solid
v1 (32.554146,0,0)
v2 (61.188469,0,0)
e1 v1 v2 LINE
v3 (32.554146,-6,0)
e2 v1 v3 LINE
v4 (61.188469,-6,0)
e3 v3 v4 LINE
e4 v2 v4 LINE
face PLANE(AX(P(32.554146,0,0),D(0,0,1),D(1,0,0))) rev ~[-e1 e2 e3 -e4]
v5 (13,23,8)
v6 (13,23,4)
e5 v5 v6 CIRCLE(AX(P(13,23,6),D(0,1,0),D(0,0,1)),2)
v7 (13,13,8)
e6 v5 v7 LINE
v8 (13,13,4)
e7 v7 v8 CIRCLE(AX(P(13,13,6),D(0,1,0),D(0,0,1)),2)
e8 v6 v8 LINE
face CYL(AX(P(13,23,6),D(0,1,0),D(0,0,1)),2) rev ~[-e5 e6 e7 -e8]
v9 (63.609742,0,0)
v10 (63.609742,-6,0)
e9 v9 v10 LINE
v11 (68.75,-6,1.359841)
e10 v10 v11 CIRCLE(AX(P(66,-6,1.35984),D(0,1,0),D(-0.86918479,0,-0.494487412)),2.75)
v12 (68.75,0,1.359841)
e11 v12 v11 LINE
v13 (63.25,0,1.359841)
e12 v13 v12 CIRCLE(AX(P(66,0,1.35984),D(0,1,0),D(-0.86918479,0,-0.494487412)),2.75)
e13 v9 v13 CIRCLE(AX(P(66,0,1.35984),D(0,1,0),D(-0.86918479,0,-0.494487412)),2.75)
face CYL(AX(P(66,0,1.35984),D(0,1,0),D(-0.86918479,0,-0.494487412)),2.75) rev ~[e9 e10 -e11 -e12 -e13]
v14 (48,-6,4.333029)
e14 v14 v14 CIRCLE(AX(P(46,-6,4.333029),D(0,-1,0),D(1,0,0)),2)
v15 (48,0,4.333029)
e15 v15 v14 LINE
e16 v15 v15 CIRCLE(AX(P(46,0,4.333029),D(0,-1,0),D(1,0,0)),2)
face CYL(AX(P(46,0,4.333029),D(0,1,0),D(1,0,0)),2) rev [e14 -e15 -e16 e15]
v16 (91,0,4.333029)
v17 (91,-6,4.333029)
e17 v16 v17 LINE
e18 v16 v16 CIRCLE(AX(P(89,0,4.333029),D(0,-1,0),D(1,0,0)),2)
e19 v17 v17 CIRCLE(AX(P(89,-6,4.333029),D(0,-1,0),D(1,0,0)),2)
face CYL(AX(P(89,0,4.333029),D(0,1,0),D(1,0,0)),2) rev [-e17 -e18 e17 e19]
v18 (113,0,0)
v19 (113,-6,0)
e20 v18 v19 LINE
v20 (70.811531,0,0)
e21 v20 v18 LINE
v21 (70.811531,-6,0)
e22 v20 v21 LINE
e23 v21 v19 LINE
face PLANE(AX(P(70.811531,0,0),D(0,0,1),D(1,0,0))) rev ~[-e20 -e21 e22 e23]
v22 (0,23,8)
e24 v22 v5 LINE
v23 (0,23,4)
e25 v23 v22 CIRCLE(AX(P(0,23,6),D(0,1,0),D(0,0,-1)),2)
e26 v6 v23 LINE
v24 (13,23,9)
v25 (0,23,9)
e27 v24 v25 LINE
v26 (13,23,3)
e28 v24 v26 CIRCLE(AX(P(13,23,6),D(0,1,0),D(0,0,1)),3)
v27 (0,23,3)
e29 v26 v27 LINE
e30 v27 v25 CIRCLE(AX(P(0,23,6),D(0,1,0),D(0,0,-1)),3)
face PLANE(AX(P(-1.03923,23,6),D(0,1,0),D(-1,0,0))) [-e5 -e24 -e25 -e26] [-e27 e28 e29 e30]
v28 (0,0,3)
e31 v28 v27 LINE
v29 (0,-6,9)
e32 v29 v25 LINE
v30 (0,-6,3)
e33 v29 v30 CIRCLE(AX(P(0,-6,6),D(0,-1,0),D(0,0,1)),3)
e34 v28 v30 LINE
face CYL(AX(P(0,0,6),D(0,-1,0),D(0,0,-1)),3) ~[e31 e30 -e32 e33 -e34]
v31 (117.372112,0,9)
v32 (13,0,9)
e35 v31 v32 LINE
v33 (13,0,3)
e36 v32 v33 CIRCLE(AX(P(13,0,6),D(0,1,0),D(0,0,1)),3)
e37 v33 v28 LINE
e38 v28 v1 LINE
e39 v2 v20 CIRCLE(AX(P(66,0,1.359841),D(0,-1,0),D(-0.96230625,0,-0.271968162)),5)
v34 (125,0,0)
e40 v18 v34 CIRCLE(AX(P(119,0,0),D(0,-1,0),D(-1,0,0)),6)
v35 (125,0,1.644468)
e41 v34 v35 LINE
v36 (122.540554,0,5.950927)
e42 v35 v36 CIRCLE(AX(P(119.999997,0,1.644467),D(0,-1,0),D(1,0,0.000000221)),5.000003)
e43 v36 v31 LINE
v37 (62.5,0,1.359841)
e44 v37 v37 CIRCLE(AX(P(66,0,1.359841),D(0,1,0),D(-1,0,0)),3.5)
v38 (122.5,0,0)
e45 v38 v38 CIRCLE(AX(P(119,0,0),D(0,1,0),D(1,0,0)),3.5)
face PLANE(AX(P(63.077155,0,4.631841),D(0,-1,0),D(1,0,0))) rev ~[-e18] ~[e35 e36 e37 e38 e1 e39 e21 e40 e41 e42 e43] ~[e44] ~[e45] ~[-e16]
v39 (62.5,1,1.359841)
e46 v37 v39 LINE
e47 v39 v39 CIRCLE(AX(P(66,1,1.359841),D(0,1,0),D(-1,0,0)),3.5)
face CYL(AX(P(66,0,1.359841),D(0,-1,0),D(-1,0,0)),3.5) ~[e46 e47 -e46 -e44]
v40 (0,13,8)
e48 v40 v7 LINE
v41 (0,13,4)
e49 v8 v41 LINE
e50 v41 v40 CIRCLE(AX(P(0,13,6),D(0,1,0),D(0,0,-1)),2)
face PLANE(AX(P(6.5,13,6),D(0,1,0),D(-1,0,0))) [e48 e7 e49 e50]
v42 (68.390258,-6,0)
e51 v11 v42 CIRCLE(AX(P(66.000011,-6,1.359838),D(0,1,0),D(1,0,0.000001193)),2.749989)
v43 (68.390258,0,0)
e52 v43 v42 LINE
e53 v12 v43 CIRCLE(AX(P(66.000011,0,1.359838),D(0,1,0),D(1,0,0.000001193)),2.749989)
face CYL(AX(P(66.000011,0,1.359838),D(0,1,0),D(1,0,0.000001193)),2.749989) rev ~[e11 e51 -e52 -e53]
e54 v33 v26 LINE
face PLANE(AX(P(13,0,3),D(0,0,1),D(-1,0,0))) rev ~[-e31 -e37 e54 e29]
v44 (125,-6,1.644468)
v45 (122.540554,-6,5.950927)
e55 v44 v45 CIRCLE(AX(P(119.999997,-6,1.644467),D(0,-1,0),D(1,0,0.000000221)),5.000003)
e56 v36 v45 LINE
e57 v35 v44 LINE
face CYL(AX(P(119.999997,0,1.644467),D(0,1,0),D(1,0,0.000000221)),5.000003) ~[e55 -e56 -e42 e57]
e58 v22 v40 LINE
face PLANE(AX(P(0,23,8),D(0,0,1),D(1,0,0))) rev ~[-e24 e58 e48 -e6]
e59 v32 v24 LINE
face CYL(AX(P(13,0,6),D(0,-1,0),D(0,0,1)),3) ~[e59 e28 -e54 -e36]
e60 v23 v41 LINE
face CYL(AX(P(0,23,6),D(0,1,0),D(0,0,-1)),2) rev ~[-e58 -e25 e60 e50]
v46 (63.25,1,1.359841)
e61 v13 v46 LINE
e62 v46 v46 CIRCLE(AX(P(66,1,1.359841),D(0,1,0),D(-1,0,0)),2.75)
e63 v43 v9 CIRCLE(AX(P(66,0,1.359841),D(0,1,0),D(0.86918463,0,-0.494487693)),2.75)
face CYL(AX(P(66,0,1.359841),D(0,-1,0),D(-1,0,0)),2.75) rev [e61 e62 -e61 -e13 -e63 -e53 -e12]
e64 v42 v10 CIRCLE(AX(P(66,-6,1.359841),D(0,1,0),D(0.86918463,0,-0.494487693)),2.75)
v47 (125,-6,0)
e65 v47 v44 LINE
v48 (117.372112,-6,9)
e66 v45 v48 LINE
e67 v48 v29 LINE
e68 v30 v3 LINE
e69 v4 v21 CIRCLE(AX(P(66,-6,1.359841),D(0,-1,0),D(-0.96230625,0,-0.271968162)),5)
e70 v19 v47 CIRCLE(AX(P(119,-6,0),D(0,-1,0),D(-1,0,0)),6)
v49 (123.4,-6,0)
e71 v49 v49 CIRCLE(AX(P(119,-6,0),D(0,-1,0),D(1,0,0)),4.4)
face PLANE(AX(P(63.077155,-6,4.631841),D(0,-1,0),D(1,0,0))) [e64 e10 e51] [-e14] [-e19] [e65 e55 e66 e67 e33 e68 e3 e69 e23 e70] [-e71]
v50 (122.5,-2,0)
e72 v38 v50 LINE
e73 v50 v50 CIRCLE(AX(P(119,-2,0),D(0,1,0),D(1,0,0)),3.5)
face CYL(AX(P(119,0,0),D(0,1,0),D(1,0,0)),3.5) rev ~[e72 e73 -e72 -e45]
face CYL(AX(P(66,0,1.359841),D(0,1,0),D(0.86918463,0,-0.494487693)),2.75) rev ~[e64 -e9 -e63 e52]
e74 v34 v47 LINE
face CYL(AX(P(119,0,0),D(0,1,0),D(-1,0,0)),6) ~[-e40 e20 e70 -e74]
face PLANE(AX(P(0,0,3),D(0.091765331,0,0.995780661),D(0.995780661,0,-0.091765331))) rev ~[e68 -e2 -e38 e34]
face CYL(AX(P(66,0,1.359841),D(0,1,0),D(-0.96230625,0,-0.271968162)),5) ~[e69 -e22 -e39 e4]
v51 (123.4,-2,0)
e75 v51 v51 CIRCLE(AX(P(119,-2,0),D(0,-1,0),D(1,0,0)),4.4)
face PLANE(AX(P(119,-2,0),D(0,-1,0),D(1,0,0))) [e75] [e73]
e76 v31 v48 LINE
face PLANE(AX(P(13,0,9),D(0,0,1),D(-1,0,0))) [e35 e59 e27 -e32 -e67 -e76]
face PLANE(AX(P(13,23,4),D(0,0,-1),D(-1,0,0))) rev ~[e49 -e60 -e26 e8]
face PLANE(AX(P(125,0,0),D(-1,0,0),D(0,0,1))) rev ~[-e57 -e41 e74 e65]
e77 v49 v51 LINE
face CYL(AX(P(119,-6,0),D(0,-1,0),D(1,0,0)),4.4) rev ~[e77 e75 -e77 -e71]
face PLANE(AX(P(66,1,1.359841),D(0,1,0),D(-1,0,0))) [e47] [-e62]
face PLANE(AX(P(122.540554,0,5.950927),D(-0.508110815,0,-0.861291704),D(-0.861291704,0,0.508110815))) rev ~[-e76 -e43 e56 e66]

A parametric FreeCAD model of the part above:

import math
import FreeCAD as App
import Part
import Sketcher

doc = App.newDocument("Part")
body = doc.addObject("PartDesign::Body", "Body")

# Sketch on XZ plane
sketch1 = doc.addObject("Sketcher::SketchObject", "Sketch")
body.addObject(sketch1)
sketch1.AttachmentSupport = (doc.XZ_Plane, [""])
sketch1.MapMode = "FlatFace"
sketch1.addGeometry(Part.LineSegment(App.Vector(0, 3, 0), App.Vector(32.6, 0, 0)), False)
sketch1.addGeometry(Part.LineSegment(App.Vector(32.6, 0, 0), App.Vector(61.2, 0, 0)), False)
sketch1.addGeometry(Part.ArcOfCircle(Part.Circle(App.Vector(66, 1.4, 0), App.Vector(0, 0, 1), 5), math.radians(-164), math.radians(-16)), False)
sketch1.addGeometry(Part.LineSegment(App.Vector(70.8, 0, 0), App.Vector(113, 0, 0)), False)
sketch1.addGeometry(Part.ArcOfCircle(Part.Circle(App.Vector(119, 0, 0), App.Vector(0, 0, 1), 6), math.radians(180), math.radians(360)), False)
sketch1.addGeometry(Part.LineSegment(App.Vector(125, 0, 0), App.Vector(125, 1.6, 0)), False)
sketch1.addGeometry(Part.ArcOfCircle(Part.Circle(App.Vector(120, 1.6, 0), App.Vector(0, 0, 1), 5), math.radians(0), math.radians(59)), False)
sketch1.addGeometry(Part.LineSegment(App.Vector(122.5, 6, 0), App.Vector(117.4, 9, 0)), False)
sketch1.addGeometry(Part.LineSegment(App.Vector(117.4, 9, 0), App.Vector(0, 9, 0)), False)
sketch1.addGeometry(Part.ArcOfCircle(Part.Circle(App.Vector(0, 6, 0), App.Vector(0, 0, 1), 3), math.radians(90), math.radians(270)), False)
sketch1.addGeometry(Part.Circle(App.Vector(119, 0, 0), App.Vector(0, 0, 1), 3.5), False)
sketch1.addGeometry(Part.ArcOfCircle(Part.Circle(App.Vector(66, 1.4, 0), App.Vector(0, 0, 1), 2.7), math.radians(0), math.radians(210)), False)
sketch1.addGeometry(Part.ArcOfCircle(Part.Circle(App.Vector(66, 1.4, 0), App.Vector(0, 0, 1), 2.7), math.radians(-30), math.radians(0)), False)
sketch1.addGeometry(Part.ArcOfCircle(Part.Circle(App.Vector(66, 1.4, 0), App.Vector(0, 0, 1), 2.8), math.radians(-150), math.radians(-30)), False)
sketch1.addGeometry(Part.Circle(App.Vector(46, 4.3, 0), App.Vector(0, 0, 1), 2), False)
sketch1.addGeometry(Part.Circle(App.Vector(89, 4.3, 0), App.Vector(0, 0, 1), 2), False)
sketch1.addConstraint(Sketcher.Constraint("Coincident", 0, 2, 1, 1))
sketch1.addConstraint(Sketcher.Constraint("Coincident", 1, 2, 2, 1))
sketch1.addConstraint(Sketcher.Constraint("Coincident", 2, 2, 3, 1))
sketch1.addConstraint(Sketcher.Constraint("Coincident", 3, 2, 4, 1))
sketch1.addConstraint(Sketcher.Constraint("Tangent", 4, 2, 5, 1))
sketch1.addConstraint(Sketcher.Constraint("Tangent", 5, 2, 6, 1))
sketch1.addConstraint(Sketcher.Constraint("Tangent", 6, 2, 7, 1))
sketch1.addConstraint(Sketcher.Constraint("Coincident", 7, 2, 8, 1))
sketch1.addConstraint(Sketcher.Constraint("Tangent", 8, 2, 9, 1))
sketch1.addConstraint(Sketcher.Constraint("Coincident", 9, 2, 0, 1))
sketch1.addConstraint(Sketcher.Constraint("Tangent", 11, 1, 12, 2))
sketch1.addConstraint(Sketcher.Constraint("Tangent", 12, 1, 13, 2))
sketch1.addConstraint(Sketcher.Constraint("Tangent", 13, 1, 11, 2))
sketch1.addConstraint(Sketcher.Constraint("Horizontal", 1))
sketch1.addConstraint(Sketcher.Constraint("Horizontal", 3))
sketch1.addConstraint(Sketcher.Constraint("Vertical", 5))
sketch1.addConstraint(Sketcher.Constraint("Horizontal", 8))
sketch1.addConstraint(Sketcher.Constraint("Coincident", 10, 3, 4, 3))
sketch1.addConstraint(Sketcher.Constraint("Coincident", 11, 3, 2, 3))
sketch1.addConstraint(Sketcher.Constraint("Equal", 14, 15))
sketch1.addConstraint(Sketcher.Constraint("PointOnObject", 4, 3, -1))
sketch1.addConstraint(Sketcher.Constraint("PointOnObject", 9, 3, -2))
sketch1.addConstraint(Sketcher.Constraint("PointOnObject", 0, 2, -1))
sketch1.addConstraint(Sketcher.Constraint("PointOnObject", 2, 2, -1))
sketch1.addConstraint(Sketcher.Constraint("PointOnObject", 9, 2, -2))
sketch1.addConstraint(Sketcher.Constraint("PointOnObject", 12, 1, -1))
sketch1.addConstraint(Sketcher.Constraint("PointOnObject", 13, 1, -1))
sketch1.addConstraint(Sketcher.Constraint("Horizontal", 14, 3, 15, 3))
sketch1.addConstraint(Sketcher.Constraint("Horizontal", 13, 3, 11, 1))
sketch1.addConstraint(Sketcher.Constraint("Diameter", 10, 7.0))
sketch1.addConstraint(Sketcher.Constraint("Diameter", 14, 4.0))
sketch1.addConstraint(Sketcher.Constraint("Radius", 2, 5.0))
sketch1.addConstraint(Sketcher.Constraint("Radius", 4, 6.0))
sketch1.addConstraint(Sketcher.Constraint("Radius", 9, 3.0))
sketch1.addConstraint(Sketcher.Constraint("Radius", 11, 2.75))
sketch1.addConstraint(Sketcher.Constraint("DistanceX", -1, 1, 2, 3, 66.0))
sketch1.addConstraint(Sketcher.Constraint("DistanceX", -1, 1, 4, 3, 119.0))
sketch1.addConstraint(Sketcher.Constraint("DistanceY", -1, 1, 9, 3, 6.0))
sketch1.addConstraint(Sketcher.Constraint("DistanceX", -1, 1, 14, 3, 46.0))
sketch1.addConstraint(Sketcher.Constraint("DistanceX", -1, 1, 15, 3, 89.0))
sketch1.addConstraint(Sketcher.Constraint("Radius", 6, 5.000003))
sketch1.addConstraint(Sketcher.Constraint("DistanceX", 3, 1, 3, 2, 42.188469))
sketch1.addConstraint(Sketcher.Constraint("DistanceX", 8, 2, 8, 1, 117.372112))
sketch1.addConstraint(Sketcher.Constraint("DistanceX", 1, 1, 1, 2, 28.634323))
sketch1.addConstraint(Sketcher.Constraint("DistanceY", 5, 1, 5, 2, 1.644468))
sketch1.addConstraint(Sketcher.Constraint("DistanceY", -1, 1, 14, 3, 4.333029))
pad1 = doc.addObject("PartDesign::Pad", "Pad")
body.addObject(pad1)
pad1.Profile = sketch1
pad1.Length = 6

# Sketch on XZ plane
sketch2 = doc.addObject("Sketcher::SketchObject", "Sketch001")
body.addObject(sketch2)
sketch2.AttachmentSupport = (doc.XZ_Plane, [""])
sketch2.MapMode = "FlatFace"
sketch2.addGeometry(Part.Circle(App.Vector(66, 1.4, 0), App.Vector(0, 0, 1), 3.5), False)
sketch2.addGeometry(Part.Circle(App.Vector(66, 1.4, 0), App.Vector(0, 0, 1), 2.8), False)
sketch2.addConstraint(Sketcher.Constraint("Coincident", 1, 3, 0, 3))
sketch2.addConstraint(Sketcher.Constraint("Diameter", 0, 7.0))
sketch2.addConstraint(Sketcher.Constraint("Diameter", 1, 5.5))
sketch2.addConstraint(Sketcher.Constraint("DistanceX", -1, 1, 0, 3, 66.0))
sketch2.addConstraint(Sketcher.Constraint("DistanceY", -1, 1, 0, 3, 1.359841))
pad2 = doc.addObject("PartDesign::Pad", "Pad001")
body.addObject(pad2)
pad2.Profile = sketch2
pad2.Length = 1
pad2.Reversed = True

# Sketch on XZ plane
sketch3 = doc.addObject("Sketcher::SketchObject", "Sketch002")
body.addObject(sketch3)
sketch3.AttachmentSupport = (doc.XZ_Plane, [""])
sketch3.MapMode = "FlatFace"
sketch3.AttachmentOffset = App.Placement(App.Vector(0, 0, 6), App.Rotation())
sketch3.addGeometry(Part.Circle(App.Vector(119, 0, 0), App.Vector(0, 0, 1), 4.4), False)
sketch3.addConstraint(Sketcher.Constraint("PointOnObject", 0, 3, -1))
sketch3.addConstraint(Sketcher.Constraint("Diameter", 0, 8.8))
sketch3.addConstraint(Sketcher.Constraint("DistanceX", -1, 1, 0, 3, 119.0))
pocket1 = doc.addObject("PartDesign::Pocket", "Pocket")
body.addObject(pocket1)
pocket1.Profile = sketch3
pocket1.Length = 4

# Sketch on XZ plane
sketch4 = doc.addObject("Sketcher::SketchObject", "Sketch003")
body.addObject(sketch4)
sketch4.AttachmentSupport = (doc.XZ_Plane, [""])
sketch4.MapMode = "FlatFace"
sketch4.addGeometry(Part.ArcOfCircle(Part.Circle(App.Vector(0, 6, 0), App.Vector(0, 0, 1), 3), math.radians(90), math.radians(270)), False)
sketch4.addGeometry(Part.LineSegment(App.Vector(0, 9, 0), App.Vector(13, 9, 0)), False)
sketch4.addGeometry(Part.ArcOfCircle(Part.Circle(App.Vector(13, 6, 0), App.Vector(0, 0, 1), 3), math.radians(-90), math.radians(90)), False)
sketch4.addGeometry(Part.LineSegment(App.Vector(13, 3, 0), App.Vector(0, 3, 0)), False)
sketch4.addConstraint(Sketcher.Constraint("Tangent", 0, 1, 1, 1))
sketch4.addConstraint(Sketcher.Constraint("Tangent", 1, 2, 2, 2))
sketch4.addConstraint(Sketcher.Constraint("Tangent", 2, 1, 3, 1))
sketch4.addConstraint(Sketcher.Constraint("Tangent", 3, 2, 0, 2))
sketch4.addConstraint(Sketcher.Constraint("Horizontal", 1))
sketch4.addConstraint(Sketcher.Constraint("Horizontal", 3))
sketch4.addConstraint(Sketcher.Constraint("PointOnObject", 0, 3, -2))
sketch4.addConstraint(Sketcher.Constraint("Radius", 0, 3.0))
sketch4.addConstraint(Sketcher.Constraint("DistanceX", 1, 1, 1, 2, 13.0))
sketch4.addConstraint(Sketcher.Constraint("DistanceY", -1, 1, 0, 3, 6.0))
pad3 = doc.addObject("PartDesign::Pad", "Pad002")
body.addObject(pad3)
pad3.Profile = sketch4
pad3.Length = 23
pad3.Reversed = True

# Sketch on XZ plane
sketch5 = doc.addObject("Sketcher::SketchObject", "Sketch004")
body.addObject(sketch5)
sketch5.AttachmentSupport = (doc.XZ_Plane, [""])
sketch5.MapMode = "FlatFace"
sketch5.AttachmentOffset = App.Placement(App.Vector(0, 0, -23), App.Rotation())
sketch5.addGeometry(Part.LineSegment(App.Vector(0, 8, 0), App.Vector(13, 8, 0)), False)
sketch5.addGeometry(Part.ArcOfCircle(Part.Circle(App.Vector(13, 6, 0), App.Vector(0, 0, 1), 2), math.radians(-90), math.radians(90)), False)
sketch5.addGeometry(Part.LineSegment(App.Vector(13, 4, 0), App.Vector(0, 4, 0)), False)
sketch5.addGeometry(Part.ArcOfCircle(Part.Circle(App.Vector(0, 6, 0), App.Vector(0, 0, 1), 2), math.radians(90), math.radians(270)), False)
sketch5.addConstraint(Sketcher.Constraint("Tangent", 0, 2, 1, 2))
sketch5.addConstraint(Sketcher.Constraint("Tangent", 1, 1, 2, 1))
sketch5.addConstraint(Sketcher.Constraint("Tangent", 2, 2, 3, 2))
sketch5.addConstraint(Sketcher.Constraint("Tangent", 3, 1, 0, 1))
sketch5.addConstraint(Sketcher.Constraint("Horizontal", 0))
sketch5.addConstraint(Sketcher.Constraint("Horizontal", 2))
sketch5.addConstraint(Sketcher.Constraint("PointOnObject", 3, 3, -2))
sketch5.addConstraint(Sketcher.Constraint("Radius", 1, 2.0))
sketch5.addConstraint(Sketcher.Constraint("DistanceX", 0, 1, 0, 2, 13.0))
sketch5.addConstraint(Sketcher.Constraint("DistanceY", -1, 1, 1, 3, 6.0))
pocket2 = doc.addObject("PartDesign::Pocket", "Pocket001")
body.addObject(pocket2)
pocket2.Profile = sketch5
pocket2.Length = 10
pocket2.Reversed = True

doc.recompute()
